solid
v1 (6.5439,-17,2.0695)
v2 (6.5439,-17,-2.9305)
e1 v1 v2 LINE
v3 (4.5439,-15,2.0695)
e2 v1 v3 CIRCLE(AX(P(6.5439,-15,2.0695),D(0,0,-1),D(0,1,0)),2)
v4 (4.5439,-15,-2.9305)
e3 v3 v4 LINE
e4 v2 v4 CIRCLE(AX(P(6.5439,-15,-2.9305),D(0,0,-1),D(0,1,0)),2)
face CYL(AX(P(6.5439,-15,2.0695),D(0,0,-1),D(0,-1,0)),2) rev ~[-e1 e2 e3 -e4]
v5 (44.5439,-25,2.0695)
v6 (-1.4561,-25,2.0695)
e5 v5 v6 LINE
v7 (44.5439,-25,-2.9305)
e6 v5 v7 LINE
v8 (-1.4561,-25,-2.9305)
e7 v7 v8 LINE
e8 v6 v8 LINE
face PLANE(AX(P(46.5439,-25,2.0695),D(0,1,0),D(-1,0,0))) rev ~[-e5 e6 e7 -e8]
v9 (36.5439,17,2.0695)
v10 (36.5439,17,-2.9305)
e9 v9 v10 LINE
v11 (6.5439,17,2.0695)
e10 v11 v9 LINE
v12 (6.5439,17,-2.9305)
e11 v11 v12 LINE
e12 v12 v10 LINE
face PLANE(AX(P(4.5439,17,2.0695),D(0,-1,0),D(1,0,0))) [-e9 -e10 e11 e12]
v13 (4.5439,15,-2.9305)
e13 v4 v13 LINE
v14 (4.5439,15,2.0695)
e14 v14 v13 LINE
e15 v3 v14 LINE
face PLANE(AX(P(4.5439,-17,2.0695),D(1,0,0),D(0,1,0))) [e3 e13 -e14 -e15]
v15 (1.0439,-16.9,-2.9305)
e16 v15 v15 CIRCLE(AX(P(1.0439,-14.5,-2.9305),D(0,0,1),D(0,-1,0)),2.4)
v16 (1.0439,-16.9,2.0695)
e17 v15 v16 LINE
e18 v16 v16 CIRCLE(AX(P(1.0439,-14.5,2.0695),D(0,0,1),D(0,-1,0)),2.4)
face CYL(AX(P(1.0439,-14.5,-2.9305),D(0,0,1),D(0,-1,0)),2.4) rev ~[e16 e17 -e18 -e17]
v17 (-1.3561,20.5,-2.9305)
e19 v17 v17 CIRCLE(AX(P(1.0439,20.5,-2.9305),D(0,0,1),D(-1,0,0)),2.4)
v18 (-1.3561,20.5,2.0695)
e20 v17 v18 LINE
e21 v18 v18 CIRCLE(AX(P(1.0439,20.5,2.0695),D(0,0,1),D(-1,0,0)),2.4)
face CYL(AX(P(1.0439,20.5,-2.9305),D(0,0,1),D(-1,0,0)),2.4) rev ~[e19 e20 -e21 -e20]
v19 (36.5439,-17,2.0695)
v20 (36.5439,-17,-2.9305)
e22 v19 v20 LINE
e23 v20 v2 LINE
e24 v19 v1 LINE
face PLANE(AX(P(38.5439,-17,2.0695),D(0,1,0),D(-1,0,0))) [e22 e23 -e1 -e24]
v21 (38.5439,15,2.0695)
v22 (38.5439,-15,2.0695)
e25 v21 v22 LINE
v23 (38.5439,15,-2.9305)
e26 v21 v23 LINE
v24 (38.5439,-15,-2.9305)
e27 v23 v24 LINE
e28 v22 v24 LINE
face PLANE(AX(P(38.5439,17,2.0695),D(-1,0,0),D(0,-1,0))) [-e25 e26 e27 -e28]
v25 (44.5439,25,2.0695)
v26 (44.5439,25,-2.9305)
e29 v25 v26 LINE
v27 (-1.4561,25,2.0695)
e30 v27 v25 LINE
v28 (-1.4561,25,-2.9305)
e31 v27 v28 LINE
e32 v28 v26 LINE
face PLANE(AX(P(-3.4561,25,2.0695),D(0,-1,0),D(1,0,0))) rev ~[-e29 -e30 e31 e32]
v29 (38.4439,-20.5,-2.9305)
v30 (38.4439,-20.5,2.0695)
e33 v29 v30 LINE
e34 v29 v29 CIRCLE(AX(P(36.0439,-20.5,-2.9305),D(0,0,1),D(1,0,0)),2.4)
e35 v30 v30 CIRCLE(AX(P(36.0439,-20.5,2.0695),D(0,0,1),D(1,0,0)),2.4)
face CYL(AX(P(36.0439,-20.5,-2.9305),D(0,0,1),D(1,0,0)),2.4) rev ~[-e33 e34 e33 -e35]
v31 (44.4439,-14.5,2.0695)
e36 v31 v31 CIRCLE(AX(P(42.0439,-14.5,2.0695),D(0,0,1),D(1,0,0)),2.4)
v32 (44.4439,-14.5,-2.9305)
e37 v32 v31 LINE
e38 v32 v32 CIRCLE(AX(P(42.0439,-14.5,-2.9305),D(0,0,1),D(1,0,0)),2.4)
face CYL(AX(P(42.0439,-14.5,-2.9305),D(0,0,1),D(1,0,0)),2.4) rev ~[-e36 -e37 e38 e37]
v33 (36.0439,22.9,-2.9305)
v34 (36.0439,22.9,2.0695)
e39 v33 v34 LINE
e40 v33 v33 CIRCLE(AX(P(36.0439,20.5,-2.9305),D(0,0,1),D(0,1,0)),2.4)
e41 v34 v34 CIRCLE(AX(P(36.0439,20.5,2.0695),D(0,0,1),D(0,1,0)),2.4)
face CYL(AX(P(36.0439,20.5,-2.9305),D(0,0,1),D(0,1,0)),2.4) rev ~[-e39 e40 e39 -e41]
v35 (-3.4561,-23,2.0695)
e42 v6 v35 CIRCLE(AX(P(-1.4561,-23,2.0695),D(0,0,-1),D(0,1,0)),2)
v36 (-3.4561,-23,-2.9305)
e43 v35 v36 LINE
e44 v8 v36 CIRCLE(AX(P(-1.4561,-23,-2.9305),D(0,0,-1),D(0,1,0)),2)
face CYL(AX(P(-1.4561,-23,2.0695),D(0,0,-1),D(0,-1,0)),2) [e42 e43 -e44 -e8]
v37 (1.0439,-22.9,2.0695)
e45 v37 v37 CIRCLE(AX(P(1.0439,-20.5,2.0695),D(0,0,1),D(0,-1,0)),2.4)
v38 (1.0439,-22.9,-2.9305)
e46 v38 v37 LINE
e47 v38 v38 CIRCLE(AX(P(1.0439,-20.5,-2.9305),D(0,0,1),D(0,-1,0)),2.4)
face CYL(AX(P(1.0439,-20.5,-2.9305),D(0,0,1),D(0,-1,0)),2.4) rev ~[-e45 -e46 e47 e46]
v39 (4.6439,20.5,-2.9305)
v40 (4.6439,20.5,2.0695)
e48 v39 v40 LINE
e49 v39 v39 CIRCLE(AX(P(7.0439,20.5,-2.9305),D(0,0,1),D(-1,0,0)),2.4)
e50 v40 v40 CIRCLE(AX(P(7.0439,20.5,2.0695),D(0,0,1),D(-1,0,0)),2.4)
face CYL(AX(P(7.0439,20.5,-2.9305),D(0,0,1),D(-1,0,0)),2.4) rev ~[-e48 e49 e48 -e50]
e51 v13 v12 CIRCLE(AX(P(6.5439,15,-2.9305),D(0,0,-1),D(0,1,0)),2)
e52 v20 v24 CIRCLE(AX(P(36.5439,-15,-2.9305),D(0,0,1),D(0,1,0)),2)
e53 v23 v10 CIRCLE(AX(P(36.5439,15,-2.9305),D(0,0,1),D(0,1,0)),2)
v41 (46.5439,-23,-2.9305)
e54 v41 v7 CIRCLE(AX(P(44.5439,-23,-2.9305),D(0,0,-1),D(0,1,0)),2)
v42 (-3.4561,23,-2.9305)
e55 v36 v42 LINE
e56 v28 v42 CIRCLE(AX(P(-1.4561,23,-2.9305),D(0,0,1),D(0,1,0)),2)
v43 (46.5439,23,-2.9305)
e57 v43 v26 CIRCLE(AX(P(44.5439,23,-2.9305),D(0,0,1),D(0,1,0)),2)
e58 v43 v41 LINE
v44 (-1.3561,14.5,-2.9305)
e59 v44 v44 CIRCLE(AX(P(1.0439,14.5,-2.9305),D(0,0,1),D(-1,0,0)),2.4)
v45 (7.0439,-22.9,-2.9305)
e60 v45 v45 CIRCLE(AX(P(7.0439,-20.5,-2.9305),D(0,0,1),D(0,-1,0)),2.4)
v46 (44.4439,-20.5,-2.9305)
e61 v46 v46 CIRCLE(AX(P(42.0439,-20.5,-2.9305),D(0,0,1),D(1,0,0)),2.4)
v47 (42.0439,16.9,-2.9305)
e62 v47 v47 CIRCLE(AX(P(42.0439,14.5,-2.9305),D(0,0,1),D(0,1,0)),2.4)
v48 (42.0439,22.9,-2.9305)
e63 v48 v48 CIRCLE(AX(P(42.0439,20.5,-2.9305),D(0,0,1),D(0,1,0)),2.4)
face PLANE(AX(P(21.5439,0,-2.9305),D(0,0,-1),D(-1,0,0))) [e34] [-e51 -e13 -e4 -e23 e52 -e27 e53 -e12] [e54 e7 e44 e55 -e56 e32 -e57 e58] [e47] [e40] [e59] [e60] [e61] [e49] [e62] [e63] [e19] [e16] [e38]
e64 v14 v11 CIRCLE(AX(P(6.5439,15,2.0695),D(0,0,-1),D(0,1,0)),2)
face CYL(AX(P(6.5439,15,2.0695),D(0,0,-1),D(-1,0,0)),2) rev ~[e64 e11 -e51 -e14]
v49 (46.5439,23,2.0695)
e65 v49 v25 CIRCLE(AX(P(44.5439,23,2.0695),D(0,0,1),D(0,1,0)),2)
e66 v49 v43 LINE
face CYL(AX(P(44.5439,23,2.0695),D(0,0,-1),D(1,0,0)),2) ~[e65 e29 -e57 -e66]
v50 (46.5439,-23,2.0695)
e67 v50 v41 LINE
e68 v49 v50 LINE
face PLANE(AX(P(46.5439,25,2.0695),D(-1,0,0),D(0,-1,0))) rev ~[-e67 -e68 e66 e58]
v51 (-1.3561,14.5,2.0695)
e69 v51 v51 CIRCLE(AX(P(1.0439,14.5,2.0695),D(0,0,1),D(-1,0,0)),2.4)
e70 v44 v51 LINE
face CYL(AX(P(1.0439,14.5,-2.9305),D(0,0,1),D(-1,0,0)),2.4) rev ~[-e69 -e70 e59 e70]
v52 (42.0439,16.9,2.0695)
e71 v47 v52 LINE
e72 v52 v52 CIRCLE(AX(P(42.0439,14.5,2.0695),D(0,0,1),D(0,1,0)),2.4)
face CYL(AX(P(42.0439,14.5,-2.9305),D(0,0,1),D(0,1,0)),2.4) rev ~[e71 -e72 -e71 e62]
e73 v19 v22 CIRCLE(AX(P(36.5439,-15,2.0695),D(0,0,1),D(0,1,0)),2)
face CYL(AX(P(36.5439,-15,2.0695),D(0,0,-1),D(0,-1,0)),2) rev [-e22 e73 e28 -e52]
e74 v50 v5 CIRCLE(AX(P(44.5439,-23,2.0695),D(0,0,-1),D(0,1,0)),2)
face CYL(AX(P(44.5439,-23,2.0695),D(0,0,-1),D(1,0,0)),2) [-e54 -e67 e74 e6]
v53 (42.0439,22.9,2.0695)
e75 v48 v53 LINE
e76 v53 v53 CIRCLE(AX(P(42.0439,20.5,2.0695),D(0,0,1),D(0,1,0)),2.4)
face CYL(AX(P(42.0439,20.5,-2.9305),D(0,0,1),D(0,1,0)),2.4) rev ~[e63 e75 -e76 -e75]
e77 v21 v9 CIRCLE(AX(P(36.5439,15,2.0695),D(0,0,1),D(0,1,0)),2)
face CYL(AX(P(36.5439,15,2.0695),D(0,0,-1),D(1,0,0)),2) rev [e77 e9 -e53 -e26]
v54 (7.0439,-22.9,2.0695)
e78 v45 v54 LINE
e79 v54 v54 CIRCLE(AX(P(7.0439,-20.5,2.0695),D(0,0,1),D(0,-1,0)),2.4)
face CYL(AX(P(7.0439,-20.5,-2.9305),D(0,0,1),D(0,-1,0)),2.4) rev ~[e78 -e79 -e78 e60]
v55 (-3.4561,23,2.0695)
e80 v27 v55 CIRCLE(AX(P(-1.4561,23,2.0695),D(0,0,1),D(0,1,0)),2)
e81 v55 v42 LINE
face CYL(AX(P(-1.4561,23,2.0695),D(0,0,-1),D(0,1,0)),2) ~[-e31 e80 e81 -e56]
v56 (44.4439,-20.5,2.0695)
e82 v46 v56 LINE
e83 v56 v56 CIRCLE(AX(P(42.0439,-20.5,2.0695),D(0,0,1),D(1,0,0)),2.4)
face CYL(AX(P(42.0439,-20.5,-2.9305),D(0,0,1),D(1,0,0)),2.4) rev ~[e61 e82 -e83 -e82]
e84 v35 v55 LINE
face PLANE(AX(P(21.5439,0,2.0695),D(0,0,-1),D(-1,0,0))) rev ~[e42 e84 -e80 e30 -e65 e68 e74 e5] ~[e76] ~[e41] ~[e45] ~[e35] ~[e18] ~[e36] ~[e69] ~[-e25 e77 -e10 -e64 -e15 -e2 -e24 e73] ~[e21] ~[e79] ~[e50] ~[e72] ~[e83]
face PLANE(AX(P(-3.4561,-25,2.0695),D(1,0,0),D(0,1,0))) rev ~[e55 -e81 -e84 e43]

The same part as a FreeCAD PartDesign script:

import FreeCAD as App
import Part
import Sketcher
from FreeCAD import Vector


def edges_at(feature, points):
    """Names of the edges that pass closest to the given points."""
    edges = feature.Shape.Edges
    near = lambda p: min(range(len(edges)), key=lambda i: edges[i].distToShape(Part.Vertex(*p))[0])
    return sorted({f"Edge{near(p) + 1}" for p in points})

doc = App.newDocument("Part")
params = doc.addObject("Spreadsheet::Sheet", "Params")
for row, (alias, value) in enumerate([
    ("sketch1_width", "50 mm"),
    ("sketch1_width2", "34 mm"),
    ("pad1_length", "5 mm"),
    ("sketch2_diameter", "4.8 mm"),
    ("hole_diameter", "4.8 mm"),
    ("fillet_radius", "2 mm"),
], start=1):
    params.set(f"A{row}", alias)
    params.set(f"B{row}", "=" + value)
    params.setAlias(f"B{row}", alias)

body = doc.addObject("PartDesign::Body", "Body")

# Sketch on XY plane
sketch1 = body.newObject("Sketcher::SketchObject", "Sketch")
sketch1.AttachmentSupport = (doc.getObject("XY_Plane"), [""])
sketch1.MapMode = "FlatFace"
sketch1.AttachmentOffset = App.Placement(Vector(0, 0, 2.0695), App.Rotation())
sketch1.addGeometry(Part.LineSegment(Vector(47, 25, 0), Vector(47, -25, 0)), False)
sketch1.addGeometry(Part.LineSegment(Vector(47, -25, 0), Vector(-3, -25, 0)), False)
sketch1.addGeometry(Part.LineSegment(Vector(-3, -25, 0), Vector(-3, 25, 0)), False)
sketch1.addGeometry(Part.LineSegment(Vector(-3, 25, 0), Vector(47, 25, 0)), False)
sketch1.addGeometry(Part.LineSegment(Vector(5, -17, 0), Vector(39, -17, 0)), False)
sketch1.addGeometry(Part.LineSegment(Vector(39, -17, 0), Vector(39, 17, 0)), False)
sketch1.addGeometry(Part.LineSegment(Vector(39, 17, 0), Vector(5, 17, 0)), False)
sketch1.addGeometry(Part.LineSegment(Vector(5, 17, 0), Vector(5, -17, 0)), False)
sketch1.addConstraint(Sketcher.Constraint("Coincident", 0, 2, 1, 1))
sketch1.addConstraint(Sketcher.Constraint("Coincident", 1, 2, 2, 1))
sketch1.addConstraint(Sketcher.Constraint("Coincident", 2, 2, 3, 1))
sketch1.addConstraint(Sketcher.Constraint("Coincident", 3, 2, 0, 1))
sketch1.addConstraint(Sketcher.Constraint("Coincident", 4, 2, 5, 1))
sketch1.addConstraint(Sketcher.Constraint("Coincident", 5, 2, 6, 1))
sketch1.addConstraint(Sketcher.Constraint("Coincident", 6, 2, 7, 1))
sketch1.addConstraint(Sketcher.Constraint("Coincident", 7, 2, 4, 1))
sketch1.addConstraint(Sketcher.Constraint("Vertical", 0))
sketch1.addConstraint(Sketcher.Constraint("Horizontal", 1))
sketch1.addConstraint(Sketcher.Constraint("Vertical", 2))
sketch1.addConstraint(Sketcher.Constraint("Horizontal", 3))
sketch1.addConstraint(Sketcher.Constraint("Horizontal", 4))
sketch1.addConstraint(Sketcher.Constraint("Vertical", 5))
sketch1.addConstraint(Sketcher.Constraint("Horizontal", 6))
sketch1.addConstraint(Sketcher.Constraint("Vertical", 7))
sketch1.addConstraint(Sketcher.Constraint("Equal", 3, 0))
sketch1.addConstraint(Sketcher.Constraint("Equal", 6, 5))
sketch1.addConstraint(Sketcher.Constraint("DistanceX", 1, 2, 1, 1, 50.0))
sketch1.addConstraint(Sketcher.Constraint("DistanceX", 4, 1, 4, 2, 34.0))
sketch1.addConstraint(Sketcher.Constraint("DistanceY", 0, 2, -1, 1, 25.0))
sketch1.addConstraint(Sketcher.Constraint("DistanceY", 4, 2, -1, 1, 17.0))
sketch1.addConstraint(Sketcher.Constraint("DistanceX", 4, 2, 0, 2, 8.0))
sketch1.addConstraint(Sketcher.Constraint("DistanceX", -1, 1, 0, 2, 46.544))
sketch1.setExpression("Constraints[18]", "Params.sketch1_width")
sketch1.setExpression("Constraints[19]", "Params.sketch1_width2")
pad1 = body.newObject("PartDesign::Pad", "Pad")
pad1.Profile = sketch1
pad1.setExpression("Length", "Params.pad1_length")
pad1.Reversed = True

# Sketch on XY plane
sketch2 = body.newObject("Sketcher::SketchObject", "Sketch001")
sketch2.AttachmentSupport = (doc.getObject("XY_Plane"), [""])
sketch2.MapMode = "FlatFace"
sketch2.AttachmentOffset = App.Placement(Vector(0, 0, -2.9305), App.Rotation())
sketch2.addGeometry(Part.Circle(Vector(36, 20.5, 0), Vector(0, 0, 1), 2.4), False)
sketch2.addGeometry(Part.Circle(Vector(42, 14.5, 0), Vector(0, 0, 1), 2.4), False)
sketch2.addGeometry(Part.Circle(Vector(42, 20.5, 0), Vector(0, 0, 1), 2.4), False)
sketch2.addConstraint(Sketcher.Constraint("Equal", 0, 1))
sketch2.addConstraint(Sketcher.Constraint("Equal", 1, 2))
sketch2.addConstraint(Sketcher.Constraint("Horizontal", 0, 3, 2, 3))
sketch2.addConstraint(Sketcher.Constraint("Vertical", 1, 3, 2, 3))
sketch2.addConstraint(Sketcher.Constraint("Diameter", 0, 4.8))
sketch2.addConstraint(Sketcher.Constraint("DistanceX", 0, 3, 1, 3, 6.0))
sketch2.addConstraint(Sketcher.Constraint("DistanceY", 1, 3, 0, 3, 6.0))
sketch2.addConstraint(Sketcher.Constraint("DistanceY", -1, 1, 0, 3, 20.5))
sketch2.addConstraint(Sketcher.Constraint("DistanceX", -1, 1, 0, 3, 36.044))
sketch2.setExpression("Constraints[4]", "Params.sketch2_diameter")
doc.recompute()
hole = body.newObject("PartDesign::Hole", "Hole")
hole.Profile = sketch2
hole.ThreadType = "None"
hole.setExpression("Diameter", "Params.hole_diameter")
hole.DepthType = "ThroughAll"
hole.Reversed = True
doc.recompute()

datumline = body.newObject("PartDesign::Line", "DatumLine")
datumline.Placement = App.Placement(Vector(21.5439, 0, 0), App.Rotation(Vector(0, 0, 1), Vector(0, 0, 1)))
polarpattern = body.newObject("PartDesign::PolarPattern", "PolarPattern")
polarpattern.Originals = [hole]
polarpattern.Axis = (datumline, [""])
polarpattern.Angle = 360
polarpattern.Occurrences = 4
body.Tip = polarpattern
doc.recompute()

fillet = body.newObject("PartDesign::Fillet", "Fillet")
fillet.Base = (polarpattern, edges_at(polarpattern, [
    (38.544, 17, -0.43),
    (38.544, -17, -0.43),
    (4.544, -17, -0.43),
    (4.544, 17, -0.43),
    (-3.456, 25, -0.43),
    (-3.456, -25, -0.43),
    (46.544, -25, -0.43),
    (46.544, 25, -0.43),
]))
fillet.setExpression("Radius", "Params.fillet_radius")

doc.recompute()
